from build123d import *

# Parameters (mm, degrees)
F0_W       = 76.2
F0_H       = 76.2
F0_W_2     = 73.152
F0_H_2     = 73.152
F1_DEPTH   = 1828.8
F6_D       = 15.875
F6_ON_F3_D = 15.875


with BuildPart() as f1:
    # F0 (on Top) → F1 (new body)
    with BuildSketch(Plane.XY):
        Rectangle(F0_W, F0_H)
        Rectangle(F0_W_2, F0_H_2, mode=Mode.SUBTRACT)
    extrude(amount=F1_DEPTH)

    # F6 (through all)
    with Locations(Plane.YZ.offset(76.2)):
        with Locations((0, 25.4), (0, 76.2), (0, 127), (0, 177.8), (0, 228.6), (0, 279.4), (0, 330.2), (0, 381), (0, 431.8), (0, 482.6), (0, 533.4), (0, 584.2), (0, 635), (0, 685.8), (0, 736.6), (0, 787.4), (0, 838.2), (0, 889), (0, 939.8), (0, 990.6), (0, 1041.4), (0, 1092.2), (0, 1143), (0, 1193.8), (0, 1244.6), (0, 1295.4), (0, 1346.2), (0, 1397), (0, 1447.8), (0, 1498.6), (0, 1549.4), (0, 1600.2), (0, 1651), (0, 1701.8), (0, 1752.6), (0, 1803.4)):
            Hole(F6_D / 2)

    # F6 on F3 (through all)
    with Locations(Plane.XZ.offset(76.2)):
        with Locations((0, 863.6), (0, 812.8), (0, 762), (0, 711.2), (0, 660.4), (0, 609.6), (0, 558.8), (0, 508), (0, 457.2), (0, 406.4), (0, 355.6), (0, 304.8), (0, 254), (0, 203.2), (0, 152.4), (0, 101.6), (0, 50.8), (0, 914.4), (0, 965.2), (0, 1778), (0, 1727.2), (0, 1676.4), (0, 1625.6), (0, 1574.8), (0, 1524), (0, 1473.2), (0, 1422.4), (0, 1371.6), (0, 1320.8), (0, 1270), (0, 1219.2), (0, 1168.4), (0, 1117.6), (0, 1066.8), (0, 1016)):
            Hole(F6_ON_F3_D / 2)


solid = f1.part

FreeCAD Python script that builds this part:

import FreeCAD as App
import Part
import Sketcher
Q = App.Units.Quantity

doc = App.newDocument("Part")
params = doc.addObject("Spreadsheet::Sheet", "Params")
for row, (alias, value) in enumerate([
    ("sketch1_width", "3 in"),
    ("sketch1_width2", "2.88 in"),
    ("pad1_length", "72 in"),
    ("sketch2_diameter", "0.625 in"),
    ("hole_diameter", "0.625 in"),
    ("sketch3_diameter", "0.625 in"),
    ("hole2_diameter", "0.625 in"),
], start=1):
    params.set(f"A{row}", alias)
    params.set(f"B{row}", "=" + value)
    params.setAlias(f"B{row}", alias)

body = doc.addObject("PartDesign::Body", "Body")

sketch1 = body.newObject("Sketcher::SketchObject", "Sketch")
sketch1.AttachmentSupport = (doc.getObject("XY_Plane"), [""])
sketch1.MapMode = "FlatFace"
sketch1.addGeometry([
    Part.LineSegment(App.Vector(-38, 38, 0), App.Vector(-38, -38, 0)),
    Part.LineSegment(App.Vector(-38, -38, 0), App.Vector(38, -38, 0)),
    Part.LineSegment(App.Vector(38, -38, 0), App.Vector(38, 38, 0)),
    Part.LineSegment(App.Vector(38, 38, 0), App.Vector(-38, 38, 0)),
    Part.LineSegment(App.Vector(37, -37, 0), App.Vector(-37, -37, 0)),
    Part.LineSegment(App.Vector(-37, -37, 0), App.Vector(-37, 37, 0)),
    Part.LineSegment(App.Vector(-37, 37, 0), App.Vector(37, 37, 0)),
    Part.LineSegment(App.Vector(37, 37, 0), App.Vector(37, -37, 0)),
], False)
sketch1.addConstraint([
    Sketcher.Constraint("Coincident", 0, 2, 1, 1),
    Sketcher.Constraint("Coincident", 1, 2, 2, 1),
    Sketcher.Constraint("Coincident", 2, 2, 3, 1),
    Sketcher.Constraint("Coincident", 3, 2, 0, 1),
    Sketcher.Constraint("Coincident", 4, 2, 5, 1),
    Sketcher.Constraint("Coincident", 5, 2, 6, 1),
    Sketcher.Constraint("Coincident", 6, 2, 7, 1),
    Sketcher.Constraint("Coincident", 7, 2, 4, 1),
    Sketcher.Constraint("Vertical", 0),
    Sketcher.Constraint("Horizontal", 1),
    Sketcher.Constraint("Vertical", 2),
    Sketcher.Constraint("Horizontal", 3),
    Sketcher.Constraint("Horizontal", 4),
    Sketcher.Constraint("Vertical", 5),
    Sketcher.Constraint("Horizontal", 6),
    Sketcher.Constraint("Vertical", 7),
    Sketcher.Constraint("Symmetric", 0, 2, 2, 2, -1, 1),
    Sketcher.Constraint("Symmetric", 4, 2, 6, 2, -1, 1),
    Sketcher.Constraint("Equal", 3, 0),
    Sketcher.Constraint("Equal", 6, 5),
    Sketcher.Constraint("DistanceX", 1, 1, 1, 2, Q("3 in")),
    Sketcher.Constraint("DistanceX", 4, 2, 4, 1, Q("2.88 in")),
])
sketch1.setExpression("Constraints[20]", "Params.sketch1_width")
sketch1.setExpression("Constraints[21]", "Params.sketch1_width2")
pad1 = body.newObject("PartDesign::Pad", "Pad")
pad1.Profile = sketch1
pad1.setExpression("Length", "Params.pad1_length")

sketch2 = body.newObject("Sketcher::SketchObject", "Sketch001")
sketch2.AttachmentSupport = (doc.getObject("YZ_Plane"), [""])
sketch2.MapMode = "FlatFace"
sketch2.AttachmentOffset = App.Placement(App.Vector(0, 0, 3 * 25.4), App.Rotation())
sketch2.addGeometry([
    Part.Circle(App.Vector(0, 25, 0), App.Vector(0, 0, 1), 8),
    Part.Circle(App.Vector(0, 76, 0), App.Vector(0, 0, 1), 8),
    Part.Circle(App.Vector(0, 127, 0), App.Vector(0, 0, 1), 8),
    Part.Circle(App.Vector(0, 178, 0), App.Vector(0, 0, 1), 8),
    Part.Circle(App.Vector(0, 229, 0), App.Vector(0, 0, 1), 8),
    Part.Circle(App.Vector(0, 279, 0), App.Vector(0, 0, 1), 8),
    Part.Circle(App.Vector(0, 330, 0), App.Vector(0, 0, 1), 8),
    Part.Circle(App.Vector(0, 381, 0), App.Vector(0, 0, 1), 8),
    Part.Circle(App.Vector(0, 432, 0), App.Vector(0, 0, 1), 8),
    Part.Circle(App.Vector(0, 483, 0), App.Vector(0, 0, 1), 8),
    Part.Circle(App.Vector(0, 533, 0), App.Vector(0, 0, 1), 8),
    Part.Circle(App.Vector(0, 584, 0), App.Vector(0, 0, 1), 8),
    Part.Circle(App.Vector(0, 635, 0), App.Vector(0, 0, 1), 8),
    Part.Circle(App.Vector(0, 686, 0), App.Vector(0, 0, 1), 8),
    Part.Circle(App.Vector(0, 737, 0), App.Vector(0, 0, 1), 8),
    Part.Circle(App.Vector(0, 787, 0), App.Vector(0, 0, 1), 8),
    Part.Circle(App.Vector(0, 838, 0), App.Vector(0, 0, 1), 8),
    Part.Circle(App.Vector(0, 889, 0), App.Vector(0, 0, 1), 8),
    Part.Circle(App.Vector(0, 940, 0), App.Vector(0, 0, 1), 8),
    Part.Circle(App.Vector(0, 991, 0), App.Vector(0, 0, 1), 8),
    Part.Circle(App.Vector(0, 1041, 0), App.Vector(0, 0, 1), 8),
    Part.Circle(App.Vector(0, 1092, 0), App.Vector(0, 0, 1), 8),
    Part.Circle(App.Vector(0, 1143, 0), App.Vector(0, 0, 1), 8),
    Part.Circle(App.Vector(0, 1194, 0), App.Vector(0, 0, 1), 8),
    Part.Circle(App.Vector(0, 1245, 0), App.Vector(0, 0, 1), 8),
    Part.Circle(App.Vector(0, 1295, 0), App.Vector(0, 0, 1), 8),
    Part.Circle(App.Vector(0, 1346, 0), App.Vector(0, 0, 1), 8),
    Part.Circle(App.Vector(0, 1397, 0), App.Vector(0, 0, 1), 8),
    Part.Circle(App.Vector(0, 1448, 0), App.Vector(0, 0, 1), 8),
    Part.Circle(App.Vector(0, 1499, 0), App.Vector(0, 0, 1), 8),
    Part.Circle(App.Vector(0, 1549, 0), App.Vector(0, 0, 1), 8),
    Part.Circle(App.Vector(0, 1600, 0), App.Vector(0, 0, 1), 8),
    Part.Circle(App.Vector(0, 1651, 0), App.Vector(0, 0, 1), 8),
    Part.Circle(App.Vector(0, 1702, 0), App.Vector(0, 0, 1), 8),
    Part.Circle(App.Vector(0, 1753, 0), App.Vector(0, 0, 1), 8),
    Part.Circle(App.Vector(0, 1803, 0), App.Vector(0, 0, 1), 8),
], False)
sketch2.addConstraint([
    Sketcher.Constraint("Equal", 0, 1),
    Sketcher.Constraint("Equal", 1, 2),
    Sketcher.Constraint("Equal", 2, 3),
    Sketcher.Constraint("Equal", 3, 4),
    Sketcher.Constraint("Equal", 4, 5),
    Sketcher.Constraint("Equal", 5, 6),
    Sketcher.Constraint("Equal", 6, 7),
    Sketcher.Constraint("Equal", 7, 8),
    Sketcher.Constraint("Equal", 8, 9),
    Sketcher.Constraint("Equal", 9, 10),
    Sketcher.Constraint("Equal", 10, 11),
    Sketcher.Constraint("Equal", 11, 12),
    Sketcher.Constraint("Equal", 12, 13),
    Sketcher.Constraint("Equal", 13, 14),
    Sketcher.Constraint("Equal", 14, 15),
    Sketcher.Constraint("Equal", 15, 16),
    Sketcher.Constraint("Equal", 16, 17),
    Sketcher.Constraint("Equal", 17, 18),
    Sketcher.Constraint("Equal", 18, 19),
    Sketcher.Constraint("Equal", 19, 20),
    Sketcher.Constraint("Equal", 20, 21),
    Sketcher.Constraint("Equal", 21, 22),
    Sketcher.Constraint("Equal", 22, 23),
    Sketcher.Constraint("Equal", 23, 24),
    Sketcher.Constraint("Equal", 24, 25),
    Sketcher.Constraint("Equal", 25, 26),
    Sketcher.Constraint("Equal", 26, 27),
    Sketcher.Constraint("Equal", 27, 28),
    Sketcher.Constraint("Equal", 28, 29),
    Sketcher.Constraint("Equal", 29, 30),
    Sketcher.Constraint("Equal", 30, 31),
    Sketcher.Constraint("Equal", 31, 32),
    Sketcher.Constraint("Equal", 32, 33),
    Sketcher.Constraint("Equal", 33, 34),
    Sketcher.Constraint("Equal", 34, 35),
    Sketcher.Constraint("PointOnObject", 0, 3, -2),
    Sketcher.Constraint("PointOnObject", 1, 3, -2),
    Sketcher.Constraint("PointOnObject", 2, 3, -2),
    Sketcher.Constraint("PointOnObject", 3, 3, -2),
    Sketcher.Constraint("PointOnObject", 4, 3, -2),
    Sketcher.Constraint("PointOnObject", 5, 3, -2),
    Sketcher.Constraint("PointOnObject", 6, 3, -2),
    Sketcher.Constraint("PointOnObject", 7, 3, -2),
    Sketcher.Constraint("PointOnObject", 8, 3, -2),
    Sketcher.Constraint("PointOnObject", 9, 3, -2),
    Sketcher.Constraint("PointOnObject", 10, 3, -2),
    Sketcher.Constraint("PointOnObject", 11, 3, -2),
    Sketcher.Constraint("PointOnObject", 12, 3, -2),
    Sketcher.Constraint("PointOnObject", 13, 3, -2),
    Sketcher.Constraint("PointOnObject", 14, 3, -2),
    Sketcher.Constraint("PointOnObject", 15, 3, -2),
    Sketcher.Constraint("PointOnObject", 16, 3, -2),
    Sketcher.Constraint("PointOnObject", 17, 3, -2),
    Sketcher.Constraint("PointOnObject", 18, 3, -2),
    Sketcher.Constraint("PointOnObject", 19, 3, -2),
    Sketcher.Constraint("PointOnObject", 20, 3, -2),
    Sketcher.Constraint("PointOnObject", 21, 3, -2),
    Sketcher.Constraint("PointOnObject", 22, 3, -2),
    Sketcher.Constraint("PointOnObject", 23, 3, -2),
    Sketcher.Constraint("PointOnObject", 24, 3, -2),
    Sketcher.Constraint("PointOnObject", 25, 3, -2),
    Sketcher.Constraint("PointOnObject", 26, 3, -2),
    Sketcher.Constraint("PointOnObject", 27, 3, -2),
    Sketcher.Constraint("PointOnObject", 28, 3, -2),
    Sketcher.Constraint("PointOnObject", 29, 3, -2),
    Sketcher.Constraint("PointOnObject", 30, 3, -2),
    Sketcher.Constraint("PointOnObject", 31, 3, -2),
    Sketcher.Constraint("PointOnObject", 32, 3, -2),
    Sketcher.Constraint("PointOnObject", 33, 3, -2),
    Sketcher.Constraint("PointOnObject", 34, 3, -2),
    Sketcher.Constraint("PointOnObject", 35, 3, -2),
    Sketcher.Constraint("Diameter", 0, Q("0.625 in")),
    Sketcher.Constraint("DistanceY", -1, 1, 0, 3, Q("1 in")),
    Sketcher.Constraint("DistanceY", -1, 1, 1, 3, Q("3 in")),
    Sketcher.Constraint("DistanceY", -1, 1, 2, 3, Q("5 in")),
    Sketcher.Constraint("DistanceY", -1, 1, 3, 3, Q("7 in")),
    Sketcher.Constraint("DistanceY", -1, 1, 4, 3, Q("9 in")),
    Sketcher.Constraint("DistanceY", -1, 1, 5, 3, Q("11 in")),
    Sketcher.Constraint("DistanceY", -1, 1, 6, 3, Q("13 in")),
    Sketcher.Constraint("DistanceY", -1, 1, 7, 3, Q("15 in")),
    Sketcher.Constraint("DistanceY", -1, 1, 8, 3, Q("17 in")),
    Sketcher.Constraint("DistanceY", -1, 1, 9, 3, Q("19 in")),
    Sketcher.Constraint("DistanceY", -1, 1, 10, 3, Q("21 in")),
    Sketcher.Constraint("DistanceY", -1, 1, 11, 3, Q("23 in")),
    Sketcher.Constraint("DistanceY", -1, 1, 12, 3, Q("25 in")),
    Sketcher.Constraint("DistanceY", -1, 1, 13, 3, Q("27 in")),
    Sketcher.Constraint("DistanceY", -1, 1, 14, 3, Q("29 in")),
    Sketcher.Constraint("DistanceY", -1, 1, 15, 3, Q("31 in")),
    Sketcher.Constraint("DistanceY", -1, 1, 16, 3, Q("33 in")),
    Sketcher.Constraint("DistanceY", -1, 1, 17, 3, Q("35 in")),
    Sketcher.Constraint("DistanceY", -1, 1, 18, 3, Q("37 in")),
    Sketcher.Constraint("DistanceY", -1, 1, 19, 3, Q("39 in")),
    Sketcher.Constraint("DistanceY", -1, 1, 20, 3, Q("41 in")),
    Sketcher.Constraint("DistanceY", -1, 1, 21, 3, Q("43 in")),
    Sketcher.Constraint("DistanceY", -1, 1, 22, 3, Q("45 in")),
    Sketcher.Constraint("DistanceY", -1, 1, 23, 3, Q("47 in")),
    Sketcher.Constraint("DistanceY", -1, 1, 24, 3, Q("49 in")),
    Sketcher.Constraint("DistanceY", -1, 1, 25, 3, Q("51 in")),
    Sketcher.Constraint("DistanceY", -1, 1, 26, 3, Q("53 in")),
    Sketcher.Constraint("DistanceY", -1, 1, 27, 3, Q("55 in")),
    Sketcher.Constraint("DistanceY", -1, 1, 28, 3, Q("57 in")),
    Sketcher.Constraint("DistanceY", -1, 1, 29, 3, Q("59 in")),
    Sketcher.Constraint("DistanceY", -1, 1, 30, 3, Q("61 in")),
    Sketcher.Constraint("DistanceY", -1, 1, 31, 3, Q("63 in")),
    Sketcher.Constraint("DistanceY", -1, 1, 32, 3, Q("65 in")),
    Sketcher.Constraint("DistanceY", -1, 1, 33, 3, Q("67 in")),
    Sketcher.Constraint("DistanceY", -1, 1, 34, 3, Q("69 in")),
    Sketcher.Constraint("DistanceY", -1, 1, 35, 3, Q("71 in")),
])
sketch2.setExpression("Constraints[71]", "Params.sketch2_diameter")
doc.recompute()
hole = body.newObject("PartDesign::Hole", "Hole")
hole.Profile = sketch2
hole.ThreadType = "None"
hole.setExpression("Diameter", "Params.hole_diameter")
hole.DepthType = "ThroughAll"

sketch3 = body.newObject("Sketcher::SketchObject", "Sketch002")
sketch3.AttachmentSupport = (doc.getObject("XZ_Plane"), [""])
sketch3.MapMode = "FlatFace"
sketch3.AttachmentOffset = App.Placement(App.Vector(0, 0, 3 * 25.4), App.Rotation())
sketch3.addGeometry([
    Part.Circle(App.Vector(0, 864, 0), App.Vector(0, 0, 1), 8),
    Part.Circle(App.Vector(0, 813, 0), App.Vector(0, 0, 1), 8),
    Part.Circle(App.Vector(0, 762, 0), App.Vector(0, 0, 1), 8),
    Part.Circle(App.Vector(0, 711, 0), App.Vector(0, 0, 1), 8),
    Part.Circle(App.Vector(0, 660, 0), App.Vector(0, 0, 1), 8),
    Part.Circle(App.Vector(0, 610, 0), App.Vector(0, 0, 1), 8),
    Part.Circle(App.Vector(0, 559, 0), App.Vector(0, 0, 1), 8),
    Part.Circle(App.Vector(0, 508, 0), App.Vector(0, 0, 1), 8),
    Part.Circle(App.Vector(0, 457, 0), App.Vector(0, 0, 1), 8),
    Part.Circle(App.Vector(0, 406, 0), App.Vector(0, 0, 1), 8),
    Part.Circle(App.Vector(0, 356, 0), App.Vector(0, 0, 1), 8),
    Part.Circle(App.Vector(0, 305, 0), App.Vector(0, 0, 1), 8),
    Part.Circle(App.Vector(0, 254, 0), App.Vector(0, 0, 1), 8),
    Part.Circle(App.Vector(0, 203, 0), App.Vector(0, 0, 1), 8),
    Part.Circle(App.Vector(0, 152, 0), App.Vector(0, 0, 1), 8),
    Part.Circle(App.Vector(0, 102, 0), App.Vector(0, 0, 1), 8),
    Part.Circle(App.Vector(0, 51, 0), App.Vector(0, 0, 1), 8),
    Part.Circle(App.Vector(0, 914, 0), App.Vector(0, 0, 1), 8),
    Part.Circle(App.Vector(0, 965, 0), App.Vector(0, 0, 1), 8),
    Part.Circle(App.Vector(0, 1778, 0), App.Vector(0, 0, 1), 8),
    Part.Circle(App.Vector(0, 1727, 0), App.Vector(0, 0, 1), 8),
    Part.Circle(App.Vector(0, 1676, 0), App.Vector(0, 0, 1), 8),
    Part.Circle(App.Vector(0, 1626, 0), App.Vector(0, 0, 1), 8),
    Part.Circle(App.Vector(0, 1575, 0), App.Vector(0, 0, 1), 8),
    Part.Circle(App.Vector(0, 1524, 0), App.Vector(0, 0, 1), 8),
    Part.Circle(App.Vector(0, 1473, 0), App.Vector(0, 0, 1), 8),
    Part.Circle(App.Vector(0, 1422, 0), App.Vector(0, 0, 1), 8),
    Part.Circle(App.Vector(0, 1372, 0), App.Vector(0, 0, 1), 8),
    Part.Circle(App.Vector(0, 1321, 0), App.Vector(0, 0, 1), 8),
    Part.Circle(App.Vector(0, 1270, 0), App.Vector(0, 0, 1), 8),
    Part.Circle(App.Vector(0, 1219, 0), App.Vector(0, 0, 1), 8),
    Part.Circle(App.Vector(0, 1168, 0), App.Vector(0, 0, 1), 8),
    Part.Circle(App.Vector(0, 1118, 0), App.Vector(0, 0, 1), 8),
    Part.Circle(App.Vector(0, 1067, 0), App.Vector(0, 0, 1), 8),
    Part.Circle(App.Vector(0, 1016, 0), App.Vector(0, 0, 1), 8),
], False)
sketch3.addConstraint([
    Sketcher.Constraint("Equal", 0, 1),
    Sketcher.Constraint("Equal", 1, 2),
    Sketcher.Constraint("Equal", 2, 3),
    Sketcher.Constraint("Equal", 3, 4),
    Sketcher.Constraint("Equal", 4, 5),
    Sketcher.Constraint("Equal", 5, 6),
    Sketcher.Constraint("Equal", 6, 7),
    Sketcher.Constraint("Equal", 7, 8),
    Sketcher.Constraint("Equal", 8, 9),
    Sketcher.Constraint("Equal", 9, 10),
    Sketcher.Constraint("Equal", 10, 11),
    Sketcher.Constraint("Equal", 11, 12),
    Sketcher.Constraint("Equal", 12, 13),
    Sketcher.Constraint("Equal", 13, 14),
    Sketcher.Constraint("Equal", 14, 15),
    Sketcher.Constraint("Equal", 15, 16),
    Sketcher.Constraint("Equal", 16, 17),
    Sketcher.Constraint("Equal", 17, 18),
    Sketcher.Constraint("Equal", 18, 19),
    Sketcher.Constraint("Equal", 19, 20),
    Sketcher.Constraint("Equal", 20, 21),
    Sketcher.Constraint("Equal", 21, 22),
    Sketcher.Constraint("Equal", 22, 23),
    Sketcher.Constraint("Equal", 23, 24),
    Sketcher.Constraint("Equal", 24, 25),
    Sketcher.Constraint("Equal", 25, 26),
    Sketcher.Constraint("Equal", 26, 27),
    Sketcher.Constraint("Equal", 27, 28),
    Sketcher.Constraint("Equal", 28, 29),
    Sketcher.Constraint("Equal", 29, 30),
    Sketcher.Constraint("Equal", 30, 31),
    Sketcher.Constraint("Equal", 31, 32),
    Sketcher.Constraint("Equal", 32, 33),
    Sketcher.Constraint("Equal", 33, 34),
    Sketcher.Constraint("PointOnObject", 0, 3, -2),
    Sketcher.Constraint("PointOnObject", 1, 3, -2),
    Sketcher.Constraint("PointOnObject", 2, 3, -2),
    Sketcher.Constraint("PointOnObject", 3, 3, -2),
    Sketcher.Constraint("PointOnObject", 4, 3, -2),
    Sketcher.Constraint("PointOnObject", 5, 3, -2),
    Sketcher.Constraint("PointOnObject", 6, 3, -2),
    Sketcher.Constraint("PointOnObject", 7, 3, -2),
    Sketcher.Constraint("PointOnObject", 8, 3, -2),
    Sketcher.Constraint("PointOnObject", 9, 3, -2),
    Sketcher.Constraint("PointOnObject", 10, 3, -2),
    Sketcher.Constraint("PointOnObject", 11, 3, -2),
    Sketcher.Constraint("PointOnObject", 12, 3, -2),
    Sketcher.Constraint("PointOnObject", 13, 3, -2),
    Sketcher.Constraint("PointOnObject", 14, 3, -2),
    Sketcher.Constraint("PointOnObject", 15, 3, -2),
    Sketcher.Constraint("PointOnObject", 16, 3, -2),
    Sketcher.Constraint("PointOnObject", 17, 3, -2),
    Sketcher.Constraint("PointOnObject", 18, 3, -2),
    Sketcher.Constraint("PointOnObject", 19, 3, -2),
    Sketcher.Constraint("PointOnObject", 20, 3, -2),
    Sketcher.Constraint("PointOnObject", 21, 3, -2),
    Sketcher.Constraint("PointOnObject", 22, 3, -2),
    Sketcher.Constraint("PointOnObject", 23, 3, -2),
    Sketcher.Constraint("PointOnObject", 24, 3, -2),
    Sketcher.Constraint("PointOnObject", 25, 3, -2),
    Sketcher.Constraint("PointOnObject", 26, 3, -2),
    Sketcher.Constraint("PointOnObject", 27, 3, -2),
    Sketcher.Constraint("PointOnObject", 28, 3, -2),
    Sketcher.Constraint("PointOnObject", 29, 3, -2),
    Sketcher.Constraint("PointOnObject", 30, 3, -2),
    Sketcher.Constraint("PointOnObject", 31, 3, -2),
    Sketcher.Constraint("PointOnObject", 32, 3, -2),
    Sketcher.Constraint("PointOnObject", 33, 3, -2),
    Sketcher.Constraint("PointOnObject", 34, 3, -2),
    Sketcher.Constraint("Diameter", 0, Q("0.625 in")),
    Sketcher.Constraint("DistanceY", -1, 1, 0, 3, Q("34 in")),
    Sketcher.Constraint("DistanceY", -1, 1, 1, 3, Q("32 in")),
    Sketcher.Constraint("DistanceY", -1, 1, 2, 3, Q("30 in")),
    Sketcher.Constraint("DistanceY", -1, 1, 3, 3, Q("28 in")),
    Sketcher.Constraint("DistanceY", -1, 1, 4, 3, Q("26 in")),
    Sketcher.Constraint("DistanceY", -1, 1, 5, 3, Q("24 in")),
    Sketcher.Constraint("DistanceY", -1, 1, 6, 3, Q("22 in")),
    Sketcher.Constraint("DistanceY", -1, 1, 7, 3, Q("20 in")),
    Sketcher.Constraint("DistanceY", -1, 1, 8, 3, Q("18 in")),
    Sketcher.Constraint("DistanceY", -1, 1, 9, 3, Q("16 in")),
    Sketcher.Constraint("DistanceY", -1, 1, 10, 3, Q("14 in")),
    Sketcher.Constraint("DistanceY", -1, 1, 11, 3, Q("12 in")),
    Sketcher.Constraint("DistanceY", -1, 1, 12, 3, Q("10 in")),
    Sketcher.Constraint("DistanceY", -1, 1, 13, 3, Q("8 in")),
    Sketcher.Constraint("DistanceY", -1, 1, 14, 3, Q("6 in")),
    Sketcher.Constraint("DistanceY", -1, 1, 15, 3, Q("4 in")),
    Sketcher.Constraint("DistanceY", -1, 1, 16, 3, Q("2 in")),
    Sketcher.Constraint("DistanceY", -1, 1, 17, 3, Q("36 in")),
    Sketcher.Constraint("DistanceY", -1, 1, 18, 3, Q("38 in")),
    Sketcher.Constraint("DistanceY", -1, 1, 19, 3, Q("70 in")),
    Sketcher.Constraint("DistanceY", -1, 1, 20, 3, Q("68 in")),
    Sketcher.Constraint("DistanceY", -1, 1, 21, 3, Q("66 in")),
    Sketcher.Constraint("DistanceY", -1, 1, 22, 3, Q("64 in")),
    Sketcher.Constraint("DistanceY", -1, 1, 23, 3, Q("62 in")),
    Sketcher.Constraint("DistanceY", -1, 1, 24, 3, Q("60 in")),
    Sketcher.Constraint("DistanceY", -1, 1, 25, 3, Q("58 in")),
    Sketcher.Constraint("DistanceY", -1, 1, 26, 3, Q("56 in")),
    Sketcher.Constraint("DistanceY", -1, 1, 27, 3, Q("54 in")),
    Sketcher.Constraint("DistanceY", -1, 1, 28, 3, Q("52 in")),
    Sketcher.Constraint("DistanceY", -1, 1, 29, 3, Q("50 in")),
    Sketcher.Constraint("DistanceY", -1, 1, 30, 3, Q("48 in")),
    Sketcher.Constraint("DistanceY", -1, 1, 31, 3, Q("46 in")),
    Sketcher.Constraint("DistanceY", -1, 1, 32, 3, Q("44 in")),
    Sketcher.Constraint("DistanceY", -1, 1, 33, 3, Q("42 in")),
    Sketcher.Constraint("DistanceY", -1, 1, 34, 3, Q("40 in")),
])
sketch3.setExpression("Constraints[69]", "Params.sketch3_diameter")
doc.recompute()
hole2 = body.newObject("PartDesign::Hole", "Hole001")
hole2.Profile = sketch3
hole2.ThreadType = "None"
hole2.setExpression("Diameter", "Params.hole2_diameter")
hole2.DepthType = "ThroughAll"

doc.recompute()
